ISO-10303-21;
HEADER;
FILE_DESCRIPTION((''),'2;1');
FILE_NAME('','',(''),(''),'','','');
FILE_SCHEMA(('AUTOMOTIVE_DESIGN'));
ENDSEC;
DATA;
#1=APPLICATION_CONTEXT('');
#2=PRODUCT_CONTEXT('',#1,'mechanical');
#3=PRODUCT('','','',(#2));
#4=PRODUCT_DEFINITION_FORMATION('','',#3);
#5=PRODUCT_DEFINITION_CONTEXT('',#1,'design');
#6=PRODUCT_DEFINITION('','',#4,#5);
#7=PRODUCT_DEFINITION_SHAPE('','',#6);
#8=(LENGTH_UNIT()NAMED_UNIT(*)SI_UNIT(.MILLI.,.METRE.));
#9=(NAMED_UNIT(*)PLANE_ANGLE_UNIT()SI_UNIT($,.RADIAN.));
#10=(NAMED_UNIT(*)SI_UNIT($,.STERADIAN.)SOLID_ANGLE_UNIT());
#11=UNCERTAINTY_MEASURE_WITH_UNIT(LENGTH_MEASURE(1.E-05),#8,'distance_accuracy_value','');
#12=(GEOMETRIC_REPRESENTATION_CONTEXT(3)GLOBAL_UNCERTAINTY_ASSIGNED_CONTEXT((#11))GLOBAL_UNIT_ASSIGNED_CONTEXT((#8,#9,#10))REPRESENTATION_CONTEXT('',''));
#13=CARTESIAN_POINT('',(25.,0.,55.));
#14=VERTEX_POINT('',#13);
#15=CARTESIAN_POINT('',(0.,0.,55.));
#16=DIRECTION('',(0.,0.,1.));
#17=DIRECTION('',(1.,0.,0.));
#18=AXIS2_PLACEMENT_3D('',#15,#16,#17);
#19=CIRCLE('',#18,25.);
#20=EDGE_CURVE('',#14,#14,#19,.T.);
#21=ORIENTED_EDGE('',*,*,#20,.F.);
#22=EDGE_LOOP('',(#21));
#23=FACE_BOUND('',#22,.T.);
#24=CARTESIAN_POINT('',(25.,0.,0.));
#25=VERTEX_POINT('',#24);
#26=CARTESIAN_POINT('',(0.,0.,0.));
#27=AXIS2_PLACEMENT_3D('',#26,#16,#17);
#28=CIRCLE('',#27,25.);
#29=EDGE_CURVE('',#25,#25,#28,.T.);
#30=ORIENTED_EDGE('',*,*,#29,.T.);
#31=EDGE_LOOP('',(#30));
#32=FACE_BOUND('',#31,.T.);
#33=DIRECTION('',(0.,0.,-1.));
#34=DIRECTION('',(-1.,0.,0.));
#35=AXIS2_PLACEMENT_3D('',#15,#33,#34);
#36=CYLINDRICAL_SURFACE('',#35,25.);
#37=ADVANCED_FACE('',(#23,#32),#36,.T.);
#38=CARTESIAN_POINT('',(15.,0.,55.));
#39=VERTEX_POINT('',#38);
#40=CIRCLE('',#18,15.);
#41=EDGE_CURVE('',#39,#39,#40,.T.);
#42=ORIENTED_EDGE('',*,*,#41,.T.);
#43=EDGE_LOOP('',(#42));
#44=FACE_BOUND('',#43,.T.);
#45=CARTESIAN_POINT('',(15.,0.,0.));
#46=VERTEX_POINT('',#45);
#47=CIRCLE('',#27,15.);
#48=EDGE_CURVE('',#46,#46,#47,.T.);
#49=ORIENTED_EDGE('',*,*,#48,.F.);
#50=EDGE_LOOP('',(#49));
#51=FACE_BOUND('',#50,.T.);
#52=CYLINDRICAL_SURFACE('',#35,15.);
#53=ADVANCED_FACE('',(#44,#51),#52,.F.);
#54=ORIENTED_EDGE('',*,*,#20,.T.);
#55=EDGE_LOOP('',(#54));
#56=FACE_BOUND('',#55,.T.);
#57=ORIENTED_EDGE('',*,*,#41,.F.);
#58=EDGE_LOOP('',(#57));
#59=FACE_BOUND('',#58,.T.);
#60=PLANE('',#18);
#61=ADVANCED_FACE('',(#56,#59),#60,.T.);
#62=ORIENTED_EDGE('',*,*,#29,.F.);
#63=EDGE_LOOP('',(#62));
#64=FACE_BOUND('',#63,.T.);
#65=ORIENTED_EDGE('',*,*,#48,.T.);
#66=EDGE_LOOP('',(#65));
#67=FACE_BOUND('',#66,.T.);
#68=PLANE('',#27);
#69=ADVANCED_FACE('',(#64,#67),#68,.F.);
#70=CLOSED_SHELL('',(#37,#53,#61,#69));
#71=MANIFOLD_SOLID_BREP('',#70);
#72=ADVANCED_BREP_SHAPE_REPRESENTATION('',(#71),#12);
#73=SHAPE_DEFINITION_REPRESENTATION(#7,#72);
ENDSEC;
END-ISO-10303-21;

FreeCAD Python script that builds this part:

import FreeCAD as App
import Part
import Sketcher

V = App.Vector
Q = App.Units.Quantity

doc = App.newDocument("Part")
body = doc.addObject("PartDesign::Body", "Body")

sketch1 = body.newObject("Sketcher::SketchObject", "Sketch")
sketch1.AttachmentSupport = (doc.getObject("XY_Plane"), [""])
sketch1.MapMode = "FlatFace"
sketch1.addGeometry([
    Part.Circle(V(0, 0, 0), V(0, 0, 1), 25),
    Part.Circle(V(0, 0, 0), V(0, 0, 1), 15),
], False)
sketch1.addConstraint([
    Sketcher.Constraint("Coincident", 0, 3, -1, 1),
    Sketcher.Constraint("Coincident", 1, 3, -1, 1),
    Sketcher.Constraint("Diameter", 0, Q("50 mm")),
    Sketcher.Constraint("Diameter", 1, Q("30 mm")),
])
pad1 = body.newObject("PartDesign::Pad", "Pad")
pad1.Profile = sketch1
pad1.Length = 55

doc.recompute()
